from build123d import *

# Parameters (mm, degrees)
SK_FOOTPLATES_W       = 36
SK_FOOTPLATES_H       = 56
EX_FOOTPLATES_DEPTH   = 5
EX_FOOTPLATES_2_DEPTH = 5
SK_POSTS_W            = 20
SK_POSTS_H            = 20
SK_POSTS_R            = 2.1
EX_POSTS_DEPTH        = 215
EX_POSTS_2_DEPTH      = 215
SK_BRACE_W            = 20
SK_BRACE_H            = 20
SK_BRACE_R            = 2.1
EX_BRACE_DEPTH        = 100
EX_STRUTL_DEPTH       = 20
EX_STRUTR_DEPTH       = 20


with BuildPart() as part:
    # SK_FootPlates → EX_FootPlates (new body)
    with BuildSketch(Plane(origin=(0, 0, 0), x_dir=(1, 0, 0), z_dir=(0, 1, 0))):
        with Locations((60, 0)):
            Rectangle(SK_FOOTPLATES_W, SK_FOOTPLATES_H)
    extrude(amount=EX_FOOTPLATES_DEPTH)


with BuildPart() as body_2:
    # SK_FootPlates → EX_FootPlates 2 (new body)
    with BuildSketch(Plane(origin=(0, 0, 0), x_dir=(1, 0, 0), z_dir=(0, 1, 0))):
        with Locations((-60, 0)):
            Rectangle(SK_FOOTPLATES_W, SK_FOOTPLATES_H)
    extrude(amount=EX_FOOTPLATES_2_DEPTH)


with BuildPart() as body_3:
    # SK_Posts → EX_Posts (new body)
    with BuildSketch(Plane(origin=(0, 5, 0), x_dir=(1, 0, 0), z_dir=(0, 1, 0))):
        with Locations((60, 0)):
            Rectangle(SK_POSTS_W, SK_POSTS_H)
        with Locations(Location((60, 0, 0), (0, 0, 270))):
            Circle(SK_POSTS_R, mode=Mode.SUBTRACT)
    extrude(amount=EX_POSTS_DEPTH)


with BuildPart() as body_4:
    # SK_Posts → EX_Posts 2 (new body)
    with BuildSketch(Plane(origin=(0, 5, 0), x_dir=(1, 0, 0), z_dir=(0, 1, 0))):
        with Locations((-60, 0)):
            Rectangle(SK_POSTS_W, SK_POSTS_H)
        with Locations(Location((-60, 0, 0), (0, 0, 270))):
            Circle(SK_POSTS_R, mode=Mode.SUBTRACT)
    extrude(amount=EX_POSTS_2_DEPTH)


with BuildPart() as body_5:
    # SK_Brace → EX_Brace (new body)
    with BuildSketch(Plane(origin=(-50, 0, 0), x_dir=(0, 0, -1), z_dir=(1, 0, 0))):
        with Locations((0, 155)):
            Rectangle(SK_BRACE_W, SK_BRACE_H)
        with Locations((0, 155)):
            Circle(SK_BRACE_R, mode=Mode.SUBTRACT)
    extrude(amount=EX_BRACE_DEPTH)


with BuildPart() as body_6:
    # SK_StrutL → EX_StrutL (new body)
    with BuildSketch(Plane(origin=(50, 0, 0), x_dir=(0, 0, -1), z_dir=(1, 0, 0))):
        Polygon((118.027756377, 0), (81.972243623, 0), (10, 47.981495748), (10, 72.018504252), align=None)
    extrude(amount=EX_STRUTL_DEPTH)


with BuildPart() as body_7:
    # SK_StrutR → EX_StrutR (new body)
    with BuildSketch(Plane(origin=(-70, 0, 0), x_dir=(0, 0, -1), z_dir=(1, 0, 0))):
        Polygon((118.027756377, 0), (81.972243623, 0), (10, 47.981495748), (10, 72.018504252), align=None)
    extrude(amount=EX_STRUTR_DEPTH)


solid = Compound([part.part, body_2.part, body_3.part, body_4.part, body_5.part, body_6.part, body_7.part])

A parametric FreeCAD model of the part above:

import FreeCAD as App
import Part
import Sketcher

doc = App.newDocument("Part")
body = doc.addObject("PartDesign::Body", "Body")

sketch1 = doc.addObject("Sketcher::SketchObject", "Sketch")
body.addObject(sketch1)
sketch1.AttachmentSupport = (doc.XZ_Plane, [""])
sketch1.MapMode = "FlatFace"
sketch1.addGeometry([
    Part.LineSegment(App.Vector(42, -28, 0), App.Vector(42, 28, 0)),
    Part.LineSegment(App.Vector(42, 28, 0), App.Vector(78, 28, 0)),
    Part.LineSegment(App.Vector(78, 28, 0), App.Vector(78, -28, 0)),
    Part.LineSegment(App.Vector(78, -28, 0), App.Vector(42, -28, 0)),
], False)
sketch1.addConstraint([
    Sketcher.Constraint("Coincident", 0, 2, 1, 1),
    Sketcher.Constraint("Coincident", 1, 2, 2, 1),
    Sketcher.Constraint("Coincident", 2, 2, 3, 1),
    Sketcher.Constraint("Coincident", 3, 2, 0, 1),
    Sketcher.Constraint("Vertical", 0),
    Sketcher.Constraint("Horizontal", 1),
    Sketcher.Constraint("Vertical", 2),
    Sketcher.Constraint("Horizontal", 3),
    Sketcher.Constraint("DistanceX", 1, 1, 1, 2, 36.0),
    Sketcher.Constraint("DistanceY", 0, 1, 0, 2, 56.0),
    Sketcher.Constraint("DistanceX", -1, 1, 0, 2, 42.0),
    Sketcher.Constraint("DistanceY", -1, 1, 0, 2, 28.0),
])
pad1 = doc.addObject("PartDesign::Pad", "Pad")
body.addObject(pad1)
pad1.Profile = sketch1
pad1.Length = 5
pad1.Reversed = True
body2 = doc.addObject("PartDesign::Body", "Body001")

sketch2 = doc.addObject("Sketcher::SketchObject", "Sketch001")
body2.addObject(sketch2)
sketch2.AttachmentSupport = (doc.getObject("XZ_Plane001"), [""])
sketch2.MapMode = "FlatFace"
sketch2.addGeometry([
    Part.LineSegment(App.Vector(-78, -28, 0), App.Vector(-78, 28, 0)),
    Part.LineSegment(App.Vector(-78, 28, 0), App.Vector(-42, 28, 0)),
    Part.LineSegment(App.Vector(-42, 28, 0), App.Vector(-42, -28, 0)),
    Part.LineSegment(App.Vector(-42, -28, 0), App.Vector(-78, -28, 0)),
], False)
sketch2.addConstraint([
    Sketcher.Constraint("Coincident", 0, 2, 1, 1),
    Sketcher.Constraint("Coincident", 1, 2, 2, 1),
    Sketcher.Constraint("Coincident", 2, 2, 3, 1),
    Sketcher.Constraint("Coincident", 3, 2, 0, 1),
    Sketcher.Constraint("Vertical", 0),
    Sketcher.Constraint("Horizontal", 1),
    Sketcher.Constraint("Vertical", 2),
    Sketcher.Constraint("Horizontal", 3),
    Sketcher.Constraint("DistanceX", 1, 1, 1, 2, 36.0),
    Sketcher.Constraint("DistanceY", 0, 1, 0, 2, 56.0),
    Sketcher.Constraint("DistanceX", 0, 2, -1, 1, 78.0),
    Sketcher.Constraint("DistanceY", -1, 1, 0, 2, 28.0),
])
pad2 = doc.addObject("PartDesign::Pad", "Pad001")
body2.addObject(pad2)
pad2.Profile = sketch2
pad2.Length = 5
pad2.Reversed = True
body3 = doc.addObject("PartDesign::Body", "Body002")

sketch3 = doc.addObject("Sketcher::SketchObject", "Sketch002")
body3.addObject(sketch3)
sketch3.AttachmentSupport = (doc.getObject("XZ_Plane002"), [""])
sketch3.MapMode = "FlatFace"
sketch3.AttachmentOffset = App.Placement(App.Vector(0, 0, -5), App.Rotation())
sketch3.addGeometry([
    Part.LineSegment(App.Vector(50, -10, 0), App.Vector(50, 10, 0)),
    Part.LineSegment(App.Vector(50, 10, 0), App.Vector(70, 10, 0)),
    Part.LineSegment(App.Vector(70, 10, 0), App.Vector(70, -10, 0)),
    Part.LineSegment(App.Vector(70, -10, 0), App.Vector(50, -10, 0)),
    Part.Circle(App.Vector(60, 0, 0), App.Vector(0, 0, 1), 2.1),
], False)
sketch3.addConstraint([
    Sketcher.Constraint("Coincident", 0, 2, 1, 1),
    Sketcher.Constraint("Coincident", 1, 2, 2, 1),
    Sketcher.Constraint("Coincident", 2, 2, 3, 1),
    Sketcher.Constraint("Coincident", 3, 2, 0, 1),
    Sketcher.Constraint("Vertical", 0),
    Sketcher.Constraint("Horizontal", 1),
    Sketcher.Constraint("Vertical", 2),
    Sketcher.Constraint("Horizontal", 3),
    Sketcher.Constraint("PointOnObject", 4, 3, -1),
    Sketcher.Constraint("Equal", 3, 0),
    Sketcher.Constraint("Diameter", 4, 4.2),
    Sketcher.Constraint("DistanceX", 1, 1, 1, 2, 20.0),
    Sketcher.Constraint("DistanceX", -1, 1, 4, 3, 60.0),
    Sketcher.Constraint("DistanceX", -1, 1, 0, 2, 50.0),
    Sketcher.Constraint("DistanceY", -1, 1, 0, 2, 10.0),
])
pad3 = doc.addObject("PartDesign::Pad", "Pad002")
body3.addObject(pad3)
pad3.Profile = sketch3
pad3.Length = 215
pad3.Reversed = True
body4 = doc.addObject("PartDesign::Body", "Body003")

sketch4 = doc.addObject("Sketcher::SketchObject", "Sketch003")
body4.addObject(sketch4)
sketch4.AttachmentSupport = (doc.getObject("XZ_Plane003"), [""])
sketch4.MapMode = "FlatFace"
sketch4.AttachmentOffset = App.Placement(App.Vector(0, 0, -5), App.Rotation())
sketch4.addGeometry([
    Part.LineSegment(App.Vector(-70, -10, 0), App.Vector(-70, 10, 0)),
    Part.LineSegment(App.Vector(-70, 10, 0), App.Vector(-50, 10, 0)),
    Part.LineSegment(App.Vector(-50, 10, 0), App.Vector(-50, -10, 0)),
    Part.LineSegment(App.Vector(-50, -10, 0), App.Vector(-70, -10, 0)),
    Part.Circle(App.Vector(-60, 0, 0), App.Vector(0, 0, 1), 2.1),
], False)
sketch4.addConstraint([
    Sketcher.Constraint("Coincident", 0, 2, 1, 1),
    Sketcher.Constraint("Coincident", 1, 2, 2, 1),
    Sketcher.Constraint("Coincident", 2, 2, 3, 1),
    Sketcher.Constraint("Coincident", 3, 2, 0, 1),
    Sketcher.Constraint("Vertical", 0),
    Sketcher.Constraint("Horizontal", 1),
    Sketcher.Constraint("Vertical", 2),
    Sketcher.Constraint("Horizontal", 3),
    Sketcher.Constraint("PointOnObject", 4, 3, -1),
    Sketcher.Constraint("Equal", 3, 0),
    Sketcher.Constraint("Diameter", 4, 4.2),
    Sketcher.Constraint("DistanceX", 1, 1, 1, 2, 20.0),
    Sketcher.Constraint("DistanceX", 4, 3, -1, 1, 60.0),
    Sketcher.Constraint("DistanceX", 0, 2, -1, 1, 70.0),
    Sketcher.Constraint("DistanceY", -1, 1, 0, 2, 10.0),
])
pad4 = doc.addObject("PartDesign::Pad", "Pad003")
body4.addObject(pad4)
pad4.Profile = sketch4
pad4.Length = 215
pad4.Reversed = True
body5 = doc.addObject("PartDesign::Body", "Body004")

sketch5 = doc.addObject("Sketcher::SketchObject", "Sketch004")
body5.addObject(sketch5)
sketch5.AttachmentSupport = (doc.getObject("YZ_Plane004"), [""])
sketch5.MapMode = "FlatFace"
sketch5.AttachmentOffset = App.Placement(App.Vector(0, 0, -50), App.Rotation())
sketch5.addGeometry([
    Part.LineSegment(App.Vector(165, 10, 0), App.Vector(145, 10, 0)),
    Part.LineSegment(App.Vector(145, 10, 0), App.Vector(145, -10, 0)),
    Part.LineSegment(App.Vector(145, -10, 0), App.Vector(165, -10, 0)),
    Part.LineSegment(App.Vector(165, -10, 0), App.Vector(165, 10, 0)),
    Part.Circle(App.Vector(155, 0, 0), App.Vector(0, 0, 1), 2.1),
], False)
sketch5.addConstraint([
    Sketcher.Constraint("Coincident", 0, 2, 1, 1),
    Sketcher.Constraint("Coincident", 1, 2, 2, 1),
    Sketcher.Constraint("Coincident", 2, 2, 3, 1),
    Sketcher.Constraint("Coincident", 3, 2, 0, 1),
    Sketcher.Constraint("Horizontal", 0),
    Sketcher.Constraint("Vertical", 1),
    Sketcher.Constraint("Horizontal", 2),
    Sketcher.Constraint("Vertical", 3),
    Sketcher.Constraint("PointOnObject", 4, 3, -1),
    Sketcher.Constraint("Equal", 2, 1),
    Sketcher.Constraint("Diameter", 4, 4.2),
    Sketcher.Constraint("DistanceX", 0, 2, 0, 1, 20.0),
    Sketcher.Constraint("DistanceX", -1, 1, 4, 3, 155.0),
    Sketcher.Constraint("DistanceX", -1, 1, 0, 2, 145.0),
    Sketcher.Constraint("DistanceY", -1, 1, 0, 2, 10.0),
])
pad5 = doc.addObject("PartDesign::Pad", "Pad004")
body5.addObject(pad5)
pad5.Profile = sketch5
pad5.Length = 100
body6 = doc.addObject("PartDesign::Body", "Body005")

sketch6 = doc.addObject("Sketcher::SketchObject", "Sketch005")
body6.addObject(sketch6)
sketch6.AttachmentSupport = (doc.getObject("YZ_Plane005"), [""])
sketch6.MapMode = "FlatFace"
sketch6.AttachmentOffset = App.Placement(App.Vector(0, 0, 50), App.Rotation())
sketch6.addGeometry([
    Part.LineSegment(App.Vector(0, -82, 0), App.Vector(0, -118, 0)),
    Part.LineSegment(App.Vector(0, -118, 0), App.Vector(72, -10, 0)),
    Part.LineSegment(App.Vector(72, -10, 0), App.Vector(48, -10, 0)),
    Part.LineSegment(App.Vector(48, -10, 0), App.Vector(0, -82, 0)),
], False)
sketch6.addConstraint([
    Sketcher.Constraint("Coincident", 0, 2, 1, 1),
    Sketcher.Constraint("Coincident", 1, 2, 2, 1),
    Sketcher.Constraint("Coincident", 2, 2, 3, 1),
    Sketcher.Constraint("Coincident", 3, 2, 0, 1),
    Sketcher.Constraint("Vertical", 0),
    Sketcher.Constraint("Horizontal", 2),
    Sketcher.Constraint("PointOnObject", 0, 2, -2),
    Sketcher.Constraint("Parallel", 1, 3),
    Sketcher.Constraint("DistanceY", 1, 2, -1, 1, 10.0),
    Sketcher.Constraint("DistanceX", 2, 2, 2, 1, 24.037009),
    Sketcher.Constraint("Distance", 3, 86.499872),
    Sketcher.Constraint("DistanceY", 0, 2, 0, 1, 36.055513),
])
pad6 = doc.addObject("PartDesign::Pad", "Pad005")
body6.addObject(pad6)
pad6.Profile = sketch6
pad6.Length = 20
body7 = doc.addObject("PartDesign::Body", "Body006")

sketch7 = doc.addObject("Sketcher::SketchObject", "Sketch006")
body7.addObject(sketch7)
sketch7.AttachmentSupport = (doc.getObject("YZ_Plane006"), [""])
sketch7.MapMode = "FlatFace"
sketch7.AttachmentOffset = App.Placement(App.Vector(0, 0, -70), App.Rotation())
sketch7.addGeometry([
    Part.LineSegment(App.Vector(0, -82, 0), App.Vector(0, -118, 0)),
    Part.LineSegment(App.Vector(0, -118, 0), App.Vector(72, -10, 0)),
    Part.LineSegment(App.Vector(72, -10, 0), App.Vector(48, -10, 0)),
    Part.LineSegment(App.Vector(48, -10, 0), App.Vector(0, -82, 0)),
], False)
sketch7.addConstraint([
    Sketcher.Constraint("Coincident", 0, 2, 1, 1),
    Sketcher.Constraint("Coincident", 1, 2, 2, 1),
    Sketcher.Constraint("Coincident", 2, 2, 3, 1),
    Sketcher.Constraint("Coincident", 3, 2, 0, 1),
    Sketcher.Constraint("Vertical", 0),
    Sketcher.Constraint("Horizontal", 2),
    Sketcher.Constraint("PointOnObject", 0, 2, -2),
    Sketcher.Constraint("Parallel", 1, 3),
    Sketcher.Constraint("DistanceY", 1, 2, -1, 1, 10.0),
    Sketcher.Constraint("DistanceX", 2, 2, 2, 1, 24.037009),
    Sketcher.Constraint("Distance", 3, 86.499872),
    Sketcher.Constraint("DistanceY", 0, 2, 0, 1, 36.055513),
])
pad7 = doc.addObject("PartDesign::Pad", "Pad006")
body7.addObject(pad7)
pad7.Profile = sketch7
pad7.Length = 20

doc.recompute()
